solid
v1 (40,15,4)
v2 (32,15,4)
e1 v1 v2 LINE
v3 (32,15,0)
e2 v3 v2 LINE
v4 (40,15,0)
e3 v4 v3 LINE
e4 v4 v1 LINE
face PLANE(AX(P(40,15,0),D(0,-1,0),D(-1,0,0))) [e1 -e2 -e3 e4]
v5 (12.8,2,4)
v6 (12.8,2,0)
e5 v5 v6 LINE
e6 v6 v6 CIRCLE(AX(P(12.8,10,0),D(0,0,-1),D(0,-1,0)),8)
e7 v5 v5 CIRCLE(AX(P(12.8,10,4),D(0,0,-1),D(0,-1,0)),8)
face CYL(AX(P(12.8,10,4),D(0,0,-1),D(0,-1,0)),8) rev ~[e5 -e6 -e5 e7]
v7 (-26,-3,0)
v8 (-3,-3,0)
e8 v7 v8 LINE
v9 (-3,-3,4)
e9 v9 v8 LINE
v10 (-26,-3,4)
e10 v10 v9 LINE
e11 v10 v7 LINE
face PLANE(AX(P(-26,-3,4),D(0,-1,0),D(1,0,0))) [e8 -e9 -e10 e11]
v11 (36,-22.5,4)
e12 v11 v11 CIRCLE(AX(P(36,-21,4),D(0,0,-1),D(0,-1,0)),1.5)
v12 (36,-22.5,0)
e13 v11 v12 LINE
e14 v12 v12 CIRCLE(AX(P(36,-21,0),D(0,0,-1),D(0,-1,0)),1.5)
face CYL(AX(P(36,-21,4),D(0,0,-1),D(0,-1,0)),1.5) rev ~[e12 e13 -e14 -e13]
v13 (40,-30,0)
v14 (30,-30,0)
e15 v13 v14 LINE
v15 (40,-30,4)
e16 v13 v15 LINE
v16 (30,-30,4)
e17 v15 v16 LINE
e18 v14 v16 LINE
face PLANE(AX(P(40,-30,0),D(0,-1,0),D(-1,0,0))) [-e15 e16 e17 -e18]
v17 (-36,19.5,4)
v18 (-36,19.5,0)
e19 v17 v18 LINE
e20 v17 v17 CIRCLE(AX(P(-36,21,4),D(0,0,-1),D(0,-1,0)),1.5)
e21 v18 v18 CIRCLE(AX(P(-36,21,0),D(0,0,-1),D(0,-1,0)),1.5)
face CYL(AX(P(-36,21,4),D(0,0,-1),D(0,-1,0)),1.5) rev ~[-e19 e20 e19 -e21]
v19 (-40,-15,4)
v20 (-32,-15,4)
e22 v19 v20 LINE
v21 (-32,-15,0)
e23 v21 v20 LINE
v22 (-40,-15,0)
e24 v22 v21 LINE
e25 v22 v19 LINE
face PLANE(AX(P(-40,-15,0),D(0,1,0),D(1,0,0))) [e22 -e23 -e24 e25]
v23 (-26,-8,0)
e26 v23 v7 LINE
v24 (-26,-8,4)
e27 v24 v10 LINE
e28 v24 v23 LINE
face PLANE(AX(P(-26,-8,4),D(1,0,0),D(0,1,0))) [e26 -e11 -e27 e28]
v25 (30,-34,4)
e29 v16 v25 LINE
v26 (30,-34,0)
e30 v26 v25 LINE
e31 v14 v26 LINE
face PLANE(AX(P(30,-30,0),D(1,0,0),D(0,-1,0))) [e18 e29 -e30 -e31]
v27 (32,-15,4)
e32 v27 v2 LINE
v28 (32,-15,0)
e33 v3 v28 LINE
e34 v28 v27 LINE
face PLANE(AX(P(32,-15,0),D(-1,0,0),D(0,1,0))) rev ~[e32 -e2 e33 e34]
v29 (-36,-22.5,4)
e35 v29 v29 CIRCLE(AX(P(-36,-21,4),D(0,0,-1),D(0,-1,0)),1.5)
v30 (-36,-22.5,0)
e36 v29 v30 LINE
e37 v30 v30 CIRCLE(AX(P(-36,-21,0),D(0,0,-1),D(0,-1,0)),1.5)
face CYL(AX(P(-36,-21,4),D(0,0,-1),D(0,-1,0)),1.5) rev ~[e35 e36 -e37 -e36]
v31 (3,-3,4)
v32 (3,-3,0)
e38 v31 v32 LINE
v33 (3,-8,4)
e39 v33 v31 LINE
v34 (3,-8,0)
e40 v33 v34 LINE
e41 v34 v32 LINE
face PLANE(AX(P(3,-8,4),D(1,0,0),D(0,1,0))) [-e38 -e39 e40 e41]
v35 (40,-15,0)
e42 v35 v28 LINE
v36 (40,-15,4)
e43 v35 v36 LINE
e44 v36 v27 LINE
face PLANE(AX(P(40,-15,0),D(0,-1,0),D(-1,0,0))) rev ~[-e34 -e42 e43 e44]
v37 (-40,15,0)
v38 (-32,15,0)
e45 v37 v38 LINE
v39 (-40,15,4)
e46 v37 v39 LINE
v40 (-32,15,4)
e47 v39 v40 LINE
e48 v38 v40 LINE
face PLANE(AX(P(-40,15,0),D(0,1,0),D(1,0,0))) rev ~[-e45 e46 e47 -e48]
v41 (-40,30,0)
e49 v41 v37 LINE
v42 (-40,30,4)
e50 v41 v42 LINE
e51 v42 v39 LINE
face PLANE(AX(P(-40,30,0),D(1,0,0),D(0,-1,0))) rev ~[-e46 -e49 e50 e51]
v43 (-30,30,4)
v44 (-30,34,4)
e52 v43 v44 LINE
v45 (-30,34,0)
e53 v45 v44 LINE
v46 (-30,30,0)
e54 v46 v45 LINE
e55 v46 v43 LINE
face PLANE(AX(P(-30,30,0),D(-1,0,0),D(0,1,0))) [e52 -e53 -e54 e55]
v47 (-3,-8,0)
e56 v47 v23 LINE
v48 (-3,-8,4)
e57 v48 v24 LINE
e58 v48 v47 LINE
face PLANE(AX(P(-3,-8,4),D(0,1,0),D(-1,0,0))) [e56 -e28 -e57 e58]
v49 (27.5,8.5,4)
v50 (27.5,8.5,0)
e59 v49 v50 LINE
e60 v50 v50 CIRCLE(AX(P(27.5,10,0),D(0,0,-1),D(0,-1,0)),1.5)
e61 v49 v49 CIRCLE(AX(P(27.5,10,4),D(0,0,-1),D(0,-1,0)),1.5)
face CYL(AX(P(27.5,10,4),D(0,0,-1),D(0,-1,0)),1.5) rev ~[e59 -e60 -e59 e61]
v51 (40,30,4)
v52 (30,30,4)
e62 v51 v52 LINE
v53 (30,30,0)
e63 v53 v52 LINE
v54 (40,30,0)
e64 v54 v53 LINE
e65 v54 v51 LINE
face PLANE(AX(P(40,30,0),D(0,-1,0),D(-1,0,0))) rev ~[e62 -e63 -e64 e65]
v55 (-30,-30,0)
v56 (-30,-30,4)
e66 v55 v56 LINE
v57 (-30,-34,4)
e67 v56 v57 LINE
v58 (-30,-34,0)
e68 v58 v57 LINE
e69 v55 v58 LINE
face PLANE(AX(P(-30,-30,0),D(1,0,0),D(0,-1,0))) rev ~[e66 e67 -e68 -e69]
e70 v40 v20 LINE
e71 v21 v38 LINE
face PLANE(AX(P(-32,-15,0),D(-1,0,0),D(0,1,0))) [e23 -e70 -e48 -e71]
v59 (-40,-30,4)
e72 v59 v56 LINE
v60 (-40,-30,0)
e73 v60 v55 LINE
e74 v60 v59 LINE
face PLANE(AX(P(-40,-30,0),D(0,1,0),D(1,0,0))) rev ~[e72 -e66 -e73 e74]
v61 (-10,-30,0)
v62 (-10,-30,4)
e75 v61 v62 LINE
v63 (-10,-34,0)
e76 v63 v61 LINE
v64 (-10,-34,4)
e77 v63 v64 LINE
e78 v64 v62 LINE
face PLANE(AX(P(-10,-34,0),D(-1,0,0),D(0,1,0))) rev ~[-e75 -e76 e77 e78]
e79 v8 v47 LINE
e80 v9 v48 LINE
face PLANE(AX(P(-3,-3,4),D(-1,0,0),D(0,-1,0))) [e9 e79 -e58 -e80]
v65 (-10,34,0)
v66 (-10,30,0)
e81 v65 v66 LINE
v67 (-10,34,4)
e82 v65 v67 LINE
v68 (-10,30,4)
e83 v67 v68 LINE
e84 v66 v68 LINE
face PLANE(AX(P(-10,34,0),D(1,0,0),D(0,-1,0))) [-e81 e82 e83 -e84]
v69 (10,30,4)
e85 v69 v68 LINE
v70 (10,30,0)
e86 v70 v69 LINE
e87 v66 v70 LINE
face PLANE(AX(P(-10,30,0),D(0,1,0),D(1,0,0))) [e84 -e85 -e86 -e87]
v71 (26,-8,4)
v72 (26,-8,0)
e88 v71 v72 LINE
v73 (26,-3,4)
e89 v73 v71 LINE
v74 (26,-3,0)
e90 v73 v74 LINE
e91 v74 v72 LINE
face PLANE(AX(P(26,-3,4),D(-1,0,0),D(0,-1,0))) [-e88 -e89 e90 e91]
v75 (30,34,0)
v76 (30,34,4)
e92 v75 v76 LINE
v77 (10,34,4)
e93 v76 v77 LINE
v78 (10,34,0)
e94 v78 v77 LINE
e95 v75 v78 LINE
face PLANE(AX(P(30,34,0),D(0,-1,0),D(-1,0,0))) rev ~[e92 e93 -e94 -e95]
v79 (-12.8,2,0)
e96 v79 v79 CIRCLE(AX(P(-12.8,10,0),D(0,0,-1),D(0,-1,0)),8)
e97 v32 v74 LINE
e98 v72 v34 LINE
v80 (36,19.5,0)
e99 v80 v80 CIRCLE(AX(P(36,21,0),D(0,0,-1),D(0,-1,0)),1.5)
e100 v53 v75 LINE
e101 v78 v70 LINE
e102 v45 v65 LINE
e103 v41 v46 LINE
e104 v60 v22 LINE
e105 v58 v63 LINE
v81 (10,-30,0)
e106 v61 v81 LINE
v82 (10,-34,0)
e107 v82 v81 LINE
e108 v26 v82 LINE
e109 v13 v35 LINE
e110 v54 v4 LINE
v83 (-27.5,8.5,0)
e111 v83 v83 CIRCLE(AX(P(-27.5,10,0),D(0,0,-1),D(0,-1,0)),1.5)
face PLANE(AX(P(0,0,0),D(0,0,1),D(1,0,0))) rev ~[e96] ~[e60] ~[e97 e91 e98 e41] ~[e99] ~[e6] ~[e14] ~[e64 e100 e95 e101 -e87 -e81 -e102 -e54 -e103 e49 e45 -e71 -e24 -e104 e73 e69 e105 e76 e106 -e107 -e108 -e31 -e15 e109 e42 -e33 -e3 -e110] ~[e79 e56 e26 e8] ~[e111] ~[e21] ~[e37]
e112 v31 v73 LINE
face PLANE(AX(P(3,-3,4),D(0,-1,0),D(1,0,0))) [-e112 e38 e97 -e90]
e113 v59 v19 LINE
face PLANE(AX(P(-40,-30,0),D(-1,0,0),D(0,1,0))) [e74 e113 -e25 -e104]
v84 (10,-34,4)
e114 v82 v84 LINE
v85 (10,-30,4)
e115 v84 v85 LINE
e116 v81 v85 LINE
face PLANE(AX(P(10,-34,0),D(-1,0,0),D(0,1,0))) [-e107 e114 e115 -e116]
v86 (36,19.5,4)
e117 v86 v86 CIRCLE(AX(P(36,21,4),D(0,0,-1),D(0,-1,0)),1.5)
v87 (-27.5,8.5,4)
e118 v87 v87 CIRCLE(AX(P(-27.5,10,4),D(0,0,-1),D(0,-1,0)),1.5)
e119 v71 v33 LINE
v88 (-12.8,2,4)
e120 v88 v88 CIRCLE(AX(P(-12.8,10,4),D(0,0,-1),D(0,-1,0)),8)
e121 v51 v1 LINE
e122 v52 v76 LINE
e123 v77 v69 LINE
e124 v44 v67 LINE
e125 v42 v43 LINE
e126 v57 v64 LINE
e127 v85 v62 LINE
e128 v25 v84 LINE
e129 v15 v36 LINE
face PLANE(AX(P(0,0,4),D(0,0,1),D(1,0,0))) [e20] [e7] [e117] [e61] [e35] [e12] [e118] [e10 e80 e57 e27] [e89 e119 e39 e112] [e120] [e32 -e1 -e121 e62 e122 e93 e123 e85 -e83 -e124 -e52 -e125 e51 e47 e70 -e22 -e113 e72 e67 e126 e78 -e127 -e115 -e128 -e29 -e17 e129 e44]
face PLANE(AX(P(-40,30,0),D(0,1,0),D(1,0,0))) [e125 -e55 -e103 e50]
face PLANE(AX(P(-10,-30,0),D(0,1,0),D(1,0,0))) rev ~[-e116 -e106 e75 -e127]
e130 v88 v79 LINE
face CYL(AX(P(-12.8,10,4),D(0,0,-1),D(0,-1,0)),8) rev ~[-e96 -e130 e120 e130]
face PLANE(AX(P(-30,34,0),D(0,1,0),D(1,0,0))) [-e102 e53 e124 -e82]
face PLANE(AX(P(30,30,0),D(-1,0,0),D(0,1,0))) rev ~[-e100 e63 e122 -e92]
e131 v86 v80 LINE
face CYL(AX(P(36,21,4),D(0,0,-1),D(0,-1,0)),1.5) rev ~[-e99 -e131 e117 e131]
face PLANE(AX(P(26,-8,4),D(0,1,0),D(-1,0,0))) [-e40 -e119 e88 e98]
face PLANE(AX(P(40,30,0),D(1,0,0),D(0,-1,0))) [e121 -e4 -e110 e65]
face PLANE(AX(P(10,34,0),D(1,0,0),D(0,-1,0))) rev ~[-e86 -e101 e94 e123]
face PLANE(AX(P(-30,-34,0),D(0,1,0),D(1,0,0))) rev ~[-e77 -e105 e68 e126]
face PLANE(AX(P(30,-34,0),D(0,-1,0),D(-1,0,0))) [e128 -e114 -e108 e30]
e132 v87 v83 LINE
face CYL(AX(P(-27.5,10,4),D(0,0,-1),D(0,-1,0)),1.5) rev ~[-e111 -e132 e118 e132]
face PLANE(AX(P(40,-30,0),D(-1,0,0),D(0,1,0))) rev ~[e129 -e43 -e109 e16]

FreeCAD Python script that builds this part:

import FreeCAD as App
import Part
import Sketcher
from FreeCAD import Vector

doc = App.newDocument("Part")
params = doc.addObject("Spreadsheet::Sheet", "Params")
for row, (alias, value) in enumerate([
    ("sketch1_width", "20 mm"),
    ("sketch1_width2", "10 mm"),
    ("sketch1_width3", "8 mm"),
    ("sketch1_height", "4 mm"),
    ("sketch1_height2", "15 mm"),
    ("pad1_length", "4 mm"),
    ("sketch2_diameter", "3 mm"),
    ("hole_diameter", "3 mm"),
    ("sketch3_diameter", "16 mm"),
    ("hole2_diameter", "16 mm"),
    ("sketch4_diameter", "3 mm"),
    ("hole3_diameter", "3 mm"),
    ("sketch5_width", "23 mm"),
    ("sketch5_height", "5 mm"),
], start=1):
    params.set(f"A{row}", alias)
    params.set(f"B{row}", "=" + value)
    params.setAlias(f"B{row}", alias)

body = doc.addObject("PartDesign::Body", "Body")

sketch1 = body.newObject("Sketcher::SketchObject", "Sketch")
sketch1.AttachmentSupport = (doc.getObject("XY_Plane"), [""])
sketch1.MapMode = "FlatFace"
sketch1.addGeometry([
    Part.LineSegment(Vector(-10, -30, 0), Vector(10, -30, 0)),
    Part.LineSegment(Vector(10, -30, 0), Vector(10, -34, 0)),
    Part.LineSegment(Vector(10, -34, 0), Vector(30, -34, 0)),
    Part.LineSegment(Vector(30, -34, 0), Vector(30, -30, 0)),
    Part.LineSegment(Vector(30, -30, 0), Vector(40, -30, 0)),
    Part.LineSegment(Vector(40, -30, 0), Vector(40, -15, 0)),
    Part.LineSegment(Vector(40, -15, 0), Vector(32, -15, 0)),
    Part.LineSegment(Vector(32, -15, 0), Vector(32, 15, 0)),
    Part.LineSegment(Vector(32, 15, 0), Vector(40, 15, 0)),
    Part.LineSegment(Vector(40, 15, 0), Vector(40, 30, 0)),
    Part.LineSegment(Vector(40, 30, 0), Vector(30, 30, 0)),
    Part.LineSegment(Vector(30, 30, 0), Vector(30, 34, 0)),
    Part.LineSegment(Vector(30, 34, 0), Vector(10, 34, 0)),
    Part.LineSegment(Vector(10, 34, 0), Vector(10, 30, 0)),
    Part.LineSegment(Vector(10, 30, 0), Vector(-10, 30, 0)),
    Part.LineSegment(Vector(-10, 30, 0), Vector(-10, 34, 0)),
    Part.LineSegment(Vector(-10, 34, 0), Vector(-30, 34, 0)),
    Part.LineSegment(Vector(-30, 34, 0), Vector(-30, 30, 0)),
    Part.LineSegment(Vector(-30, 30, 0), Vector(-40, 30, 0)),
    Part.LineSegment(Vector(-40, 30, 0), Vector(-40, 15, 0)),
    Part.LineSegment(Vector(-40, 15, 0), Vector(-32, 15, 0)),
    Part.LineSegment(Vector(-32, 15, 0), Vector(-32, -15, 0)),
    Part.LineSegment(Vector(-32, -15, 0), Vector(-40, -15, 0)),
    Part.LineSegment(Vector(-40, -15, 0), Vector(-40, -30, 0)),
    Part.LineSegment(Vector(-40, -30, 0), Vector(-30, -30, 0)),
    Part.LineSegment(Vector(-30, -30, 0), Vector(-30, -34, 0)),
    Part.LineSegment(Vector(-30, -34, 0), Vector(-10, -34, 0)),
    Part.LineSegment(Vector(-10, -34, 0), Vector(-10, -30, 0)),
], False)
sketch1.addConstraint([
    Sketcher.Constraint("Coincident", 0, 2, 1, 1),
    Sketcher.Constraint("Coincident", 1, 2, 2, 1),
    Sketcher.Constraint("Coincident", 2, 2, 3, 1),
    Sketcher.Constraint("Coincident", 3, 2, 4, 1),
    Sketcher.Constraint("Coincident", 4, 2, 5, 1),
    Sketcher.Constraint("Coincident", 5, 2, 6, 1),
    Sketcher.Constraint("Coincident", 6, 2, 7, 1),
    Sketcher.Constraint("Coincident", 7, 2, 8, 1),
    Sketcher.Constraint("Coincident", 8, 2, 9, 1),
    Sketcher.Constraint("Coincident", 9, 2, 10, 1),
    Sketcher.Constraint("Coincident", 10, 2, 11, 1),
    Sketcher.Constraint("Coincident", 11, 2, 12, 1),
    Sketcher.Constraint("Coincident", 12, 2, 13, 1),
    Sketcher.Constraint("Coincident", 13, 2, 14, 1),
    Sketcher.Constraint("Coincident", 14, 2, 15, 1),
    Sketcher.Constraint("Coincident", 15, 2, 16, 1),
    Sketcher.Constraint("Coincident", 16, 2, 17, 1),
    Sketcher.Constraint("Coincident", 17, 2, 18, 1),
    Sketcher.Constraint("Coincident", 18, 2, 19, 1),
    Sketcher.Constraint("Coincident", 19, 2, 20, 1),
    Sketcher.Constraint("Coincident", 20, 2, 21, 1),
    Sketcher.Constraint("Coincident", 21, 2, 22, 1),
    Sketcher.Constraint("Coincident", 22, 2, 23, 1),
    Sketcher.Constraint("Coincident", 23, 2, 24, 1),
    Sketcher.Constraint("Coincident", 24, 2, 25, 1),
    Sketcher.Constraint("Coincident", 25, 2, 26, 1),
    Sketcher.Constraint("Coincident", 26, 2, 27, 1),
    Sketcher.Constraint("Coincident", 27, 2, 0, 1),
    Sketcher.Constraint("Horizontal", 0),
    Sketcher.Constraint("Vertical", 1),
    Sketcher.Constraint("Horizontal", 2),
    Sketcher.Constraint("Vertical", 3),
    Sketcher.Constraint("Horizontal", 4),
    Sketcher.Constraint("Vertical", 5),
    Sketcher.Constraint("Horizontal", 6),
    Sketcher.Constraint("Vertical", 7),
    Sketcher.Constraint("Horizontal", 8),
    Sketcher.Constraint("Vertical", 9),
    Sketcher.Constraint("Horizontal", 10),
    Sketcher.Constraint("Vertical", 11),
    Sketcher.Constraint("Horizontal", 12),
    Sketcher.Constraint("Vertical", 13),
    Sketcher.Constraint("Horizontal", 14),
    Sketcher.Constraint("Vertical", 15),
    Sketcher.Constraint("Horizontal", 16),
    Sketcher.Constraint("Vertical", 17),
    Sketcher.Constraint("Horizontal", 18),
    Sketcher.Constraint("Vertical", 19),
    Sketcher.Constraint("Horizontal", 20),
    Sketcher.Constraint("Vertical", 21),
    Sketcher.Constraint("Horizontal", 22),
    Sketcher.Constraint("Vertical", 23),
    Sketcher.Constraint("Horizontal", 24),
    Sketcher.Constraint("Vertical", 25),
    Sketcher.Constraint("Horizontal", 26),
    Sketcher.Constraint("Vertical", 27),
    Sketcher.Constraint("Symmetric", 0, 2, 14, 2, -1, 1),
    Sketcher.Constraint("Symmetric", 2, 2, 16, 2, -1, 1),
    Sketcher.Constraint("Symmetric", 4, 2, 18, 2, -1, 1),
    Sketcher.Constraint("Symmetric", 6, 2, 20, 2, -1, 1),
    Sketcher.Constraint("Symmetric", 8, 2, 22, 2, -1, 1),
    Sketcher.Constraint("Symmetric", 10, 2, 24, 2, -1, 1),
    Sketcher.Constraint("Symmetric", 12, 2, 26, 2, -1, 1),
    Sketcher.Constraint("Symmetric", 12, 2, 15, 2, -2),
    Sketcher.Constraint("Symmetric", 10, 2, 17, 2, -2),
    Sketcher.Constraint("Symmetric", 8, 2, 19, 2, -2),
    Sketcher.Constraint("Horizontal", 0, 2, 3, 2),
    Sketcher.Constraint("Equal", 0, 2),
    Sketcher.Constraint("DistanceX", 0, 1, 0, 2, 20.0),
    Sketcher.Constraint("DistanceX", 4, 1, 4, 2, 10.0),
    Sketcher.Constraint("DistanceX", 6, 2, 6, 1, 8.0),
    Sketcher.Constraint("DistanceY", 1, 2, 1, 1, 4.0),
    Sketcher.Constraint("DistanceY", 5, 1, 5, 2, 15.0),
    Sketcher.Constraint("DistanceY", 5, 2, -1, 1, 15.0),
])
sketch1.setExpression("Constraints[68]", "Params.sketch1_width")
sketch1.setExpression("Constraints[69]", "Params.sketch1_width2")
sketch1.setExpression("Constraints[70]", "Params.sketch1_width3")
sketch1.setExpression("Constraints[71]", "Params.sketch1_height")
sketch1.setExpression("Constraints[72]", "Params.sketch1_height2")
pad1 = body.newObject("PartDesign::Pad", "Pad")
pad1.Profile = sketch1
pad1.setExpression("Length", "Params.pad1_length")

sketch2 = body.newObject("Sketcher::SketchObject", "Sketch001")
sketch2.AttachmentSupport = (doc.getObject("XY_Plane"), [""])
sketch2.MapMode = "FlatFace"
sketch2.AttachmentOffset = App.Placement(Vector(0, 0, 4), App.Rotation())
sketch2.addGeometry([
    Part.Circle(Vector(-36, -21, 0), Vector(0, 0, 1), 1.5),
    Part.Circle(Vector(36, -21, 0), Vector(0, 0, 1), 1.5),
    Part.Circle(Vector(-36, 21, 0), Vector(0, 0, 1), 1.5),
    Part.Circle(Vector(36, 21, 0), Vector(0, 0, 1), 1.5),
], False)
sketch2.addConstraint([
    Sketcher.Constraint("Equal", 0, 1),
    Sketcher.Constraint("Equal", 1, 2),
    Sketcher.Constraint("Equal", 2, 3),
    Sketcher.Constraint("Symmetric", 1, 3, 2, 3, -1, 1),
    Sketcher.Constraint("Symmetric", 0, 3, 3, 3, -1, 1),
    Sketcher.Constraint("Symmetric", 0, 3, 1, 3, -2),
    Sketcher.Constraint("Diameter", 0, 3.0),
    Sketcher.Constraint("DistanceX", 0, 3, -1, 1, 36.0),
    Sketcher.Constraint("DistanceY", 0, 3, -1, 1, 21.0),
])
sketch2.setExpression("Constraints[6]", "Params.sketch2_diameter")
doc.recompute()
hole = body.newObject("PartDesign::Hole", "Hole")
hole.Profile = sketch2
hole.ThreadType = "None"
hole.setExpression("Diameter", "Params.hole_diameter")
hole.DepthType = "ThroughAll"

sketch3 = body.newObject("Sketcher::SketchObject", "Sketch002")
sketch3.AttachmentSupport = (doc.getObject("XY_Plane"), [""])
sketch3.MapMode = "FlatFace"
sketch3.AttachmentOffset = App.Placement(Vector(0, 0, 4), App.Rotation())
sketch3.addGeometry([
    Part.Circle(Vector(-13, 10, 0), Vector(0, 0, 1), 8),
    Part.Circle(Vector(13, 10, 0), Vector(0, 0, 1), 8),
], False)
sketch3.addConstraint([
    Sketcher.Constraint("Equal", 0, 1),
    Sketcher.Constraint("Symmetric", 0, 3, 1, 3, -2),
    Sketcher.Constraint("Diameter", 0, 16.0),
    Sketcher.Constraint("DistanceY", -1, 1, 0, 3, 10.0),
    Sketcher.Constraint("DistanceX", 0, 3, -1, 1, 12.8),
])
sketch3.setExpression("Constraints[2]", "Params.sketch3_diameter")
doc.recompute()
hole2 = body.newObject("PartDesign::Hole", "Hole001")
hole2.Profile = sketch3
hole2.ThreadType = "None"
hole2.setExpression("Diameter", "Params.hole2_diameter")
hole2.DepthType = "ThroughAll"

sketch4 = body.newObject("Sketcher::SketchObject", "Sketch003")
sketch4.AttachmentSupport = (doc.getObject("XY_Plane"), [""])
sketch4.MapMode = "FlatFace"
sketch4.AttachmentOffset = App.Placement(Vector(0, 0, 4), App.Rotation())
sketch4.addGeometry([
    Part.Circle(Vector(-27.5, 10, 0), Vector(0, 0, 1), 1.5),
    Part.Circle(Vector(27.5, 10, 0), Vector(0, 0, 1), 1.5),
], False)
sketch4.addConstraint([
    Sketcher.Constraint("Equal", 0, 1),
    Sketcher.Constraint("Symmetric", 0, 3, 1, 3, -2),
    Sketcher.Constraint("Diameter", 0, 3.0),
    Sketcher.Constraint("DistanceY", -1, 1, 0, 3, 10.0),
    Sketcher.Constraint("DistanceX", 0, 3, 1, 3, 55.0),
])
sketch4.setExpression("Constraints[2]", "Params.sketch4_diameter")
doc.recompute()
hole3 = body.newObject("PartDesign::Hole", "Hole002")
hole3.Profile = sketch4
hole3.ThreadType = "None"
hole3.setExpression("Diameter", "Params.hole3_diameter")
hole3.DepthType = "ThroughAll"

sketch5 = body.newObject("Sketcher::SketchObject", "Sketch004")
sketch5.AttachmentSupport = (doc.getObject("XY_Plane"), [""])
sketch5.MapMode = "FlatFace"
sketch5.AttachmentOffset = App.Placement(Vector(0, 0, 4), App.Rotation())
sketch5.addGeometry([
    Part.LineSegment(Vector(-3, -3, 0), Vector(-26, -3, 0)),
    Part.LineSegment(Vector(-26, -3, 0), Vector(-26, -8, 0)),
    Part.LineSegment(Vector(-26, -8, 0), Vector(-3, -8, 0)),
    Part.LineSegment(Vector(-3, -8, 0), Vector(-3, -3, 0)),
    Part.LineSegment(Vector(26, -3, 0), Vector(3, -3, 0)),
    Part.LineSegment(Vector(3, -3, 0), Vector(3, -8, 0)),
    Part.LineSegment(Vector(3, -8, 0), Vector(26, -8, 0)),
    Part.LineSegment(Vector(26, -8, 0), Vector(26, -3, 0)),
], False)
sketch5.addConstraint([
    Sketcher.Constraint("Coincident", 0, 2, 1, 1),
    Sketcher.Constraint("Coincident", 1, 2, 2, 1),
    Sketcher.Constraint("Coincident", 2, 2, 3, 1),
    Sketcher.Constraint("Coincident", 3, 2, 0, 1),
    Sketcher.Constraint("Coincident", 4, 2, 5, 1),
    Sketcher.Constraint("Coincident", 5, 2, 6, 1),
    Sketcher.Constraint("Coincident", 6, 2, 7, 1),
    Sketcher.Constraint("Coincident", 7, 2, 4, 1),
    Sketcher.Constraint("Horizontal", 0),
    Sketcher.Constraint("Vertical", 1),
    Sketcher.Constraint("Horizontal", 2),
    Sketcher.Constraint("Vertical", 3),
    Sketcher.Constraint("Horizontal", 4),
    Sketcher.Constraint("Vertical", 5),
    Sketcher.Constraint("Horizontal", 6),
    Sketcher.Constraint("Vertical", 7),
    Sketcher.Constraint("Symmetric", 3, 2, 4, 2, -2),
    Sketcher.Constraint("Symmetric", 1, 2, 6, 2, -2),
    Sketcher.Constraint("DistanceX", 0, 2, 0, 1, 23.0),
    Sketcher.Constraint("DistanceY", 1, 2, 1, 1, 5.0),
    Sketcher.Constraint("DistanceX", 3, 2, 4, 2, 6.0),
    Sketcher.Constraint("DistanceY", 0, 2, -1, 1, 3.0),
])
sketch5.setExpression("Constraints[18]", "Params.sketch5_width")
sketch5.setExpression("Constraints[19]", "Params.sketch5_height")
pocket1 = body.newObject("PartDesign::Pocket", "Pocket")
pocket1.Profile = sketch5
pocket1.Type = "ThroughAll"

doc.recompute()
